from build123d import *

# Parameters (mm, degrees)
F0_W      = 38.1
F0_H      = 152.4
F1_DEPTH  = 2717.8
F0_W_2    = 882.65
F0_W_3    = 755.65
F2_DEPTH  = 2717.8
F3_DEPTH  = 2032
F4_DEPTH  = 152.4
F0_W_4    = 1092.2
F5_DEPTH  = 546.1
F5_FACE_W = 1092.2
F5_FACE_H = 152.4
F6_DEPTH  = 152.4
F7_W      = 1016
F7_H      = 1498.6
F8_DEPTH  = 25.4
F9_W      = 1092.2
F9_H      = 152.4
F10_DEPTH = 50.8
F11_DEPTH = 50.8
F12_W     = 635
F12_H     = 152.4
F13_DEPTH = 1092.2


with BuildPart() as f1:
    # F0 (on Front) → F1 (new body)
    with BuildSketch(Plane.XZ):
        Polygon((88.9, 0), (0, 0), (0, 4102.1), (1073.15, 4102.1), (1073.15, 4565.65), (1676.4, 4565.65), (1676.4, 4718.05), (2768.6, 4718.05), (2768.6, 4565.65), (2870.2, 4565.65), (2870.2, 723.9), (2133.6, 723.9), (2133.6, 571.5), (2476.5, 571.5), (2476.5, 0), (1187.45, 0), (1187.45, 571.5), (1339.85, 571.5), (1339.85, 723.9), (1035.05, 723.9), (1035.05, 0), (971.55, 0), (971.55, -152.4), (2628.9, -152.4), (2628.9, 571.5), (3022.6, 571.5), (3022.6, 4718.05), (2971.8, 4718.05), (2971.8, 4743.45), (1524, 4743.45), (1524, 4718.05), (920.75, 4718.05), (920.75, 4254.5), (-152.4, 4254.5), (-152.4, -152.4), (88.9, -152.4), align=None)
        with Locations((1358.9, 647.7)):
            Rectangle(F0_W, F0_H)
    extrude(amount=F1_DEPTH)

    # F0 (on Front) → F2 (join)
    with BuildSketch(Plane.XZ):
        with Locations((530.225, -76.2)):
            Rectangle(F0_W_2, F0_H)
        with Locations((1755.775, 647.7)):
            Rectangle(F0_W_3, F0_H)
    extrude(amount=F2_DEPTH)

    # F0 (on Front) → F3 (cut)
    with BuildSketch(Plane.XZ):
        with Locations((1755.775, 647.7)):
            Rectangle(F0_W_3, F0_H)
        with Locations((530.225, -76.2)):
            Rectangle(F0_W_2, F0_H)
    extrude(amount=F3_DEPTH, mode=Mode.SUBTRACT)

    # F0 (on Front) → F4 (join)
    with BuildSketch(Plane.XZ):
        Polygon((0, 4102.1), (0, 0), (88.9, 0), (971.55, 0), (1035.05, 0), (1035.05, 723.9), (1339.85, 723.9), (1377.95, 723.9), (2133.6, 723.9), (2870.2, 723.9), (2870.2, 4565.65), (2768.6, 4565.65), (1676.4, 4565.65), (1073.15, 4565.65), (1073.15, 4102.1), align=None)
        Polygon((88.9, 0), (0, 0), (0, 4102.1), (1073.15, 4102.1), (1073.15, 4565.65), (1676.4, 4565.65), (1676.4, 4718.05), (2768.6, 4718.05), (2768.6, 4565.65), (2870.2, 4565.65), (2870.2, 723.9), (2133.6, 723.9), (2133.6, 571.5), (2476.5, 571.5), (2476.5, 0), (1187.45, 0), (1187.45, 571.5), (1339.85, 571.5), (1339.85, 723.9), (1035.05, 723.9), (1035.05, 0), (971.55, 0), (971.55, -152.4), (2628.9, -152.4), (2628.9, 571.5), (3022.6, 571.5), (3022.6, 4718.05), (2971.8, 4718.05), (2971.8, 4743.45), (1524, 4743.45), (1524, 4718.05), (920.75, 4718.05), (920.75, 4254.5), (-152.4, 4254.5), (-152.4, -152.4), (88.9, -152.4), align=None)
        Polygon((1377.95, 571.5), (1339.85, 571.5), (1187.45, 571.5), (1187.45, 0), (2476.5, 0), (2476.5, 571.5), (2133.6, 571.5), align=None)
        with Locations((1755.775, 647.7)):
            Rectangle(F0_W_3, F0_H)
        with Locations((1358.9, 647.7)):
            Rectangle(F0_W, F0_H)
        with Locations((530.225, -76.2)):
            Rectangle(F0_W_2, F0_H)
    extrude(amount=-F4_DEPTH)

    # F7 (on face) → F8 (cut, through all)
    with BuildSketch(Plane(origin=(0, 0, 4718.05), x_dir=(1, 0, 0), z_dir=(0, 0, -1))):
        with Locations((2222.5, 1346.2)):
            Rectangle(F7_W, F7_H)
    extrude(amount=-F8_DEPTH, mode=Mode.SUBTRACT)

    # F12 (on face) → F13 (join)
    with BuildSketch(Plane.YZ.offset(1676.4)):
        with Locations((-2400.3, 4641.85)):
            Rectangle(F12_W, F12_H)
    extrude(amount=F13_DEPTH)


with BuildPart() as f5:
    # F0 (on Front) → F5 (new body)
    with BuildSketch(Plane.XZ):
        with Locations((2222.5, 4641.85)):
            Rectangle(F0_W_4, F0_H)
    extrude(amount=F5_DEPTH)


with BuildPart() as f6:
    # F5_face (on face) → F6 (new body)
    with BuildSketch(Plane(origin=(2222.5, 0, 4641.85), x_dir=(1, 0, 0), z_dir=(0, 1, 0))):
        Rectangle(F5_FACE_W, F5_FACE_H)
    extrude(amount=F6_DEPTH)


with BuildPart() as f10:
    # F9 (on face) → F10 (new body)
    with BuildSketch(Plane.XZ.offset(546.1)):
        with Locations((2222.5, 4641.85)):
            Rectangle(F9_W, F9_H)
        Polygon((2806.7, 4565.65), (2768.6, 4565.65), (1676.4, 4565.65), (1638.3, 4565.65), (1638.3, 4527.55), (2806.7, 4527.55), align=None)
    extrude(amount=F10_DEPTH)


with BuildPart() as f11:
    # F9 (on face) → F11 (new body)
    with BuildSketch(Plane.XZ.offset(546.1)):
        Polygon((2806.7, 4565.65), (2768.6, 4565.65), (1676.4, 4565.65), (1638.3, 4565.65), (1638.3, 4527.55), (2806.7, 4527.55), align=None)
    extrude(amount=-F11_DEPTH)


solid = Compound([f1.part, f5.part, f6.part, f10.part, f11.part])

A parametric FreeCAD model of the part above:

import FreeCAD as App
import Part
import Sketcher
from FreeCAD import Vector
Q = App.Units.Quantity


def add_polygon(sketch, points):
    """Adds a closed chain of lines whose ends are joined by coincident constraints."""
    first, n = sketch.GeometryCount, len(points)
    for a, b in zip(points, points[1:] + points[:1]):
        sketch.addGeometry(Part.LineSegment(App.Vector(*a, 0), App.Vector(*b, 0)), False)
    for i in range(n):
        sketch.addConstraint(Sketcher.Constraint("Coincident", first + i, 2, first + (i + 1) % n, 1))

doc = App.newDocument("Part")
body = doc.addObject("PartDesign::Body", "Body")

sketch1 = body.newObject("Sketcher::SketchObject", "Sketch")
sketch1.AttachmentSupport = (doc.getObject("XZ_Plane"), [""])
sketch1.MapMode = "FlatFace"
add_polygon(sketch1, [(89, 0), (0, 0), (0, 4102), (1073, 4102), (1073, 4566), (1676, 4566), (1676, 4718), (2769, 4718), (2769, 4566), (2870, 4566), (2870, 724), (2134, 724), (2134, 572), (2476, 572), (2476, 0), (1187, 0), (1187, 572), (1378, 572), (1378, 724), (1035, 724), (1035, 0), (972, 0), (972, -152), (2629, -152), (2629, 572), (3023, 572), (3023, 4718), (2972, 4718), (2972, 4743), (1524, 4743), (1524, 4718), (921, 4718), (921, 4254), (-152, 4254), (-152, -152), (89, -152)])
sketch1.addConstraint([
    Sketcher.Constraint("Horizontal", 0),
    Sketcher.Constraint("Vertical", 1),
    Sketcher.Constraint("Horizontal", 2),
    Sketcher.Constraint("Vertical", 3),
    Sketcher.Constraint("Horizontal", 4),
    Sketcher.Constraint("Vertical", 5),
    Sketcher.Constraint("Horizontal", 6),
    Sketcher.Constraint("Vertical", 7),
    Sketcher.Constraint("Horizontal", 8),
    Sketcher.Constraint("Vertical", 9),
    Sketcher.Constraint("Horizontal", 10),
    Sketcher.Constraint("Vertical", 11),
    Sketcher.Constraint("Horizontal", 12),
    Sketcher.Constraint("Vertical", 13),
    Sketcher.Constraint("Horizontal", 14),
    Sketcher.Constraint("Vertical", 15),
    Sketcher.Constraint("Horizontal", 16),
    Sketcher.Constraint("Vertical", 17),
    Sketcher.Constraint("Horizontal", 18),
    Sketcher.Constraint("Vertical", 19),
    Sketcher.Constraint("Horizontal", 20),
    Sketcher.Constraint("Vertical", 21),
    Sketcher.Constraint("Horizontal", 22),
    Sketcher.Constraint("Vertical", 23),
    Sketcher.Constraint("Horizontal", 24),
    Sketcher.Constraint("Vertical", 25),
    Sketcher.Constraint("Horizontal", 26),
    Sketcher.Constraint("Vertical", 27),
    Sketcher.Constraint("Horizontal", 28),
    Sketcher.Constraint("Vertical", 29),
    Sketcher.Constraint("Horizontal", 30),
    Sketcher.Constraint("Vertical", 31),
    Sketcher.Constraint("Horizontal", 32),
    Sketcher.Constraint("Vertical", 33),
    Sketcher.Constraint("Horizontal", 34),
    Sketcher.Constraint("Vertical", 35),
    Sketcher.Constraint("Coincident", 0, 2, -1, 1),
    Sketcher.Constraint("PointOnObject", 13, 2, -1),
    Sketcher.Constraint("PointOnObject", 19, 2, -1),
    Sketcher.Constraint("Horizontal", 4, 2, 7, 2),
    Sketcher.Constraint("Horizontal", 12, 2, 15, 2),
    Sketcher.Constraint("Horizontal", 10, 2, 17, 2),
    Sketcher.Constraint("Horizontal", 16, 2, 23, 2),
    Sketcher.Constraint("Horizontal", 6, 2, 25, 2),
    Sketcher.Constraint("Horizontal", 26, 2, 29, 2),
    Sketcher.Constraint("Horizontal", 22, 2, 33, 2),
    Sketcher.Constraint("Equal", 12, 18),
    Sketcher.Constraint("Equal", 4, 30),
    Sketcher.Constraint("Equal", 2, 32),
    Sketcher.Constraint("Equal", 7, 11),
    Sketcher.Constraint("Equal", 17, 21),
    Sketcher.Constraint("Equal", 3, 31),
    Sketcher.Constraint("DistanceX", 6, 1, 6, 2, Q("43 in")),
    Sketcher.Constraint("DistanceX", 8, 1, 8, 2, Q("4 in")),
    Sketcher.Constraint("DistanceX", 10, 2, 10, 1, Q("29 in")),
    Sketcher.Constraint("DistanceX", 26, 2, 26, 1, Q("2 in")),
    Sketcher.Constraint("DistanceX", 28, 2, 28, 1, Q("57 in")),
    Sketcher.Constraint("DistanceY", 5, 1, 5, 2, Q("6 in")),
    Sketcher.Constraint("DistanceY", 27, 1, 27, 2, Q("1 in")),
    Sketcher.Constraint("DistanceX", 0, 2, 0, 1, Q("3.5 in")),
    Sketcher.Constraint("DistanceX", 12, 1, 12, 2, Q("13.5 in")),
    Sketcher.Constraint("DistanceX", 16, 1, 16, 2, Q("7.5 in")),
    Sketcher.Constraint("DistanceX", 20, 2, 20, 1, Q("2.5 in")),
    Sketcher.Constraint("DistanceX", 24, 1, 24, 2, Q("15.5 in")),
    Sketcher.Constraint("DistanceX", 34, 1, 34, 2, Q("9.5 in")),
    Sketcher.Constraint("DistanceY", 1, 1, 1, 2, Q("161.5 in")),
    Sketcher.Constraint("DistanceY", 13, 2, 13, 1, Q("22.5 in")),
    Sketcher.Constraint("DistanceX", -1, 1, 4, 2, Q("66 in")),
    Sketcher.Constraint("DistanceX", 2, 1, 2, 2, Q("42.25 in")),
    Sketcher.Constraint("DistanceX", 14, 2, 14, 1, Q("50.75 in")),
    Sketcher.Constraint("DistanceY", 3, 1, 3, 2, Q("18.25 in")),
])
pad1 = body.newObject("PartDesign::Pad", "Pad")
pad1.Profile = sketch1
pad1.Length = Q("107 in")

sketch2 = body.newObject("Sketcher::SketchObject", "Sketch001")
sketch2.AttachmentSupport = (doc.getObject("XZ_Plane"), [""])
sketch2.MapMode = "FlatFace"
add_polygon(sketch2, [(89, 0), (89, -152), (972, -152), (972, 0)])
add_polygon(sketch2, [(1378, 724), (1378, 572), (2134, 572), (2134, 724)])
sketch2.addConstraint([
    Sketcher.Constraint("Vertical", 0),
    Sketcher.Constraint("Horizontal", 1),
    Sketcher.Constraint("Vertical", 2),
    Sketcher.Constraint("Horizontal", 3),
    Sketcher.Constraint("Vertical", 4),
    Sketcher.Constraint("Horizontal", 5),
    Sketcher.Constraint("Vertical", 6),
    Sketcher.Constraint("Horizontal", 7),
    Sketcher.Constraint("PointOnObject", 2, 2, -1),
    Sketcher.Constraint("Equal", 2, 4),
    Sketcher.Constraint("DistanceY", 0, 2, 0, 1, Q("6 in")),
    Sketcher.Constraint("DistanceX", -1, 1, 5, 2, Q("84 in")),
    Sketcher.Constraint("DistanceX", 2, 2, 4, 2, Q("16 in")),
    Sketcher.Constraint("DistanceX", 1, 1, 1, 2, Q("34.75 in")),
    Sketcher.Constraint("DistanceX", 5, 1, 5, 2, Q("29.75 in")),
    Sketcher.Constraint("DistanceY", -1, 1, 4, 2, Q("22.5 in")),
])
pad2 = body.newObject("PartDesign::Pad", "Pad001")
pad2.Profile = sketch2
pad2.Length = Q("107 in")

sketch3 = body.newObject("Sketcher::SketchObject", "Sketch002")
sketch3.AttachmentSupport = (doc.getObject("XZ_Plane"), [""])
sketch3.MapMode = "FlatFace"
add_polygon(sketch3, [(1378, 724), (1378, 572), (2134, 572), (2134, 724)])
add_polygon(sketch3, [(89, 0), (89, -152), (972, -152), (972, 0)])
sketch3.addConstraint([
    Sketcher.Constraint("Vertical", 0),
    Sketcher.Constraint("Horizontal", 1),
    Sketcher.Constraint("Vertical", 2),
    Sketcher.Constraint("Horizontal", 3),
    Sketcher.Constraint("Vertical", 4),
    Sketcher.Constraint("Horizontal", 5),
    Sketcher.Constraint("Vertical", 6),
    Sketcher.Constraint("Horizontal", 7),
    Sketcher.Constraint("PointOnObject", 6, 2, -1),
    Sketcher.Constraint("Equal", 2, 4),
    Sketcher.Constraint("DistanceY", 0, 2, 0, 1, Q("6 in")),
    Sketcher.Constraint("DistanceX", -1, 1, 1, 2, Q("84 in")),
    Sketcher.Constraint("DistanceX", 5, 2, 0, 2, Q("16 in")),
    Sketcher.Constraint("DistanceX", 1, 1, 1, 2, Q("29.75 in")),
    Sketcher.Constraint("DistanceX", 5, 1, 5, 2, Q("34.75 in")),
    Sketcher.Constraint("DistanceY", -1, 1, 0, 2, Q("22.5 in")),
])
pocket1 = body.newObject("PartDesign::Pocket", "Pocket")
pocket1.Profile = sketch3
pocket1.Length = Q("80 in")
pocket1.Reversed = True

sketch4 = body.newObject("Sketcher::SketchObject", "Sketch003")
sketch4.AttachmentSupport = (doc.getObject("XZ_Plane"), [""])
sketch4.MapMode = "FlatFace"
add_polygon(sketch4, [(2629, -152), (2629, 572), (3023, 572), (3023, 4718), (2972, 4718), (2972, 4743), (1524, 4743), (1524, 4718), (921, 4718), (921, 4254), (-152, 4254), (-152, -152)])
add_polygon(sketch4, [(2769, 4566), (1676, 4566), (1676, 4718), (2769, 4718)])
sketch4.addConstraint([
    Sketcher.Constraint("Vertical", 0),
    Sketcher.Constraint("Horizontal", 1),
    Sketcher.Constraint("Vertical", 2),
    Sketcher.Constraint("Horizontal", 3),
    Sketcher.Constraint("Vertical", 4),
    Sketcher.Constraint("Horizontal", 5),
    Sketcher.Constraint("Vertical", 6),
    Sketcher.Constraint("Horizontal", 7),
    Sketcher.Constraint("Vertical", 8),
    Sketcher.Constraint("Horizontal", 9),
    Sketcher.Constraint("Vertical", 10),
    Sketcher.Constraint("Horizontal", 11),
    Sketcher.Constraint("Horizontal", 12),
    Sketcher.Constraint("Vertical", 13),
    Sketcher.Constraint("Horizontal", 14),
    Sketcher.Constraint("Vertical", 15),
    Sketcher.Constraint("Horizontal", 3, 2, 6, 2),
    Sketcher.Constraint("Horizontal", 7, 2, 13, 2),
    Sketcher.Constraint("DistanceX", 3, 2, 3, 1, Q("2 in")),
    Sketcher.Constraint("DistanceX", 5, 2, 5, 1, Q("57 in")),
    Sketcher.Constraint("DistanceX", 12, 2, 12, 1, Q("43 in")),
    Sketcher.Constraint("DistanceY", 4, 1, 4, 2, Q("1 in")),
    Sketcher.Constraint("DistanceY", 13, 1, 13, 2, Q("6 in")),
    Sketcher.Constraint("DistanceX", 1, 1, 1, 2, Q("15.5 in")),
    Sketcher.Constraint("DistanceX", 11, 1, 11, 2, Q("109.5 in")),
    Sketcher.Constraint("DistanceY", 0, 1, 0, 2, Q("28.5 in")),
    Sketcher.Constraint("DistanceY", 10, 2, 10, 1, Q("173.5 in")),
    Sketcher.Constraint("DistanceX", -1, 1, 1, 2, Q("119 in")),
    Sketcher.Constraint("DistanceY", 10, 2, -1, 1, Q("6 in")),
    Sketcher.Constraint("DistanceX", -1, 1, 12, 2, Q("66 in")),
    Sketcher.Constraint("DistanceX", 7, 2, 7, 1, Q("23.75 in")),
    Sketcher.Constraint("DistanceY", 2, 1, 2, 2, Q("163.25 in")),
])
pad3 = body.newObject("PartDesign::Pad", "Pad002")
pad3.Profile = sketch4
pad3.Length = Q("6 in")
pad3.Reversed = True

sketch5 = body.newObject("Sketcher::SketchObject", "Sketch004")
sketch5.AttachmentSupport = (doc.getObject("XY_Plane"), [""])
sketch5.MapMode = "FlatFace"
sketch5.AttachmentOffset = App.Placement(Vector(0, 0, 185.75 * 25.4), App.Rotation())
add_polygon(sketch5, [(1714, -2096), (1714, -597), (2730, -597), (2730, -2096)])
sketch5.addConstraint([
    Sketcher.Constraint("Vertical", 0),
    Sketcher.Constraint("Horizontal", 1),
    Sketcher.Constraint("Vertical", 2),
    Sketcher.Constraint("Horizontal", 3),
    Sketcher.Constraint("DistanceX", 1, 1, 1, 2, Q("40 in")),
    Sketcher.Constraint("DistanceY", 0, 1, 0, 2, Q("59 in")),
    Sketcher.Constraint("DistanceX", -1, 1, 0, 2, Q("67.5 in")),
    Sketcher.Constraint("DistanceY", 0, 2, -1, 1, Q("23.5 in")),
])
pocket2 = body.newObject("PartDesign::Pocket", "Pocket001")
pocket2.Profile = sketch5
pocket2.Type = "ThroughAll"
pocket2.Reversed = True

sketch6 = body.newObject("Sketcher::SketchObject", "Sketch005")
sketch6.AttachmentSupport = (doc.getObject("YZ_Plane"), [""])
sketch6.MapMode = "FlatFace"
sketch6.AttachmentOffset = App.Placement(Vector(0, 0, 66 * 25.4), App.Rotation())
add_polygon(sketch6, [(-2718, 4718), (-2718, 4566), (-2083, 4566), (-2083, 4718)])
sketch6.addConstraint([
    Sketcher.Constraint("Vertical", 0),
    Sketcher.Constraint("Horizontal", 1),
    Sketcher.Constraint("Vertical", 2),
    Sketcher.Constraint("Horizontal", 3),
    Sketcher.Constraint("DistanceX", 1, 1, 1, 2, Q("25 in")),
    Sketcher.Constraint("DistanceY", 0, 2, 0, 1, Q("6 in")),
    Sketcher.Constraint("DistanceX", 0, 2, -1, 1, Q("107 in")),
    Sketcher.Constraint("DistanceY", -1, 1, 0, 2, Q("179.75 in")),
])
pad4 = body.newObject("PartDesign::Pad", "Pad003")
pad4.Profile = sketch6
pad4.Length = Q("43 in")
body2 = doc.addObject("PartDesign::Body", "Body001")

sketch7 = body2.newObject("Sketcher::SketchObject", "Sketch006")
sketch7.AttachmentSupport = (doc.getObject("XZ_Plane001"), [""])
sketch7.MapMode = "FlatFace"
add_polygon(sketch7, [(1676, 4718), (1676, 4566), (2769, 4566), (2769, 4718)])
sketch7.addConstraint([
    Sketcher.Constraint("Vertical", 0),
    Sketcher.Constraint("Horizontal", 1),
    Sketcher.Constraint("Vertical", 2),
    Sketcher.Constraint("Horizontal", 3),
    Sketcher.Constraint("DistanceX", 1, 1, 1, 2, Q("43 in")),
    Sketcher.Constraint("DistanceY", 0, 2, 0, 1, Q("6 in")),
    Sketcher.Constraint("DistanceX", -1, 1, 0, 2, Q("66 in")),
    Sketcher.Constraint("DistanceY", -1, 1, 0, 2, Q("179.75 in")),
])
pad5 = body2.newObject("PartDesign::Pad", "Pad004")
pad5.Profile = sketch7
pad5.Length = Q("21.5 in")
body3 = doc.addObject("PartDesign::Body", "Body002")

sketch8 = body3.newObject("Sketcher::SketchObject", "Sketch007")
sketch8.AttachmentSupport = (doc.getObject("XZ_Plane002"), [""])
sketch8.MapMode = "FlatFace"
add_polygon(sketch8, [(1676, 4566), (1676, 4718), (2769, 4718), (2769, 4566)])
sketch8.addConstraint([
    Sketcher.Constraint("Vertical", 0),
    Sketcher.Constraint("Horizontal", 1),
    Sketcher.Constraint("Vertical", 2),
    Sketcher.Constraint("Horizontal", 3),
    Sketcher.Constraint("DistanceX", 1, 1, 1, 2, Q("43 in")),
    Sketcher.Constraint("DistanceY", 0, 1, 0, 2, Q("6 in")),
    Sketcher.Constraint("DistanceX", -1, 1, 0, 2, Q("66 in")),
    Sketcher.Constraint("DistanceY", -1, 1, 0, 2, Q("185.75 in")),
])
pad6 = body3.newObject("PartDesign::Pad", "Pad005")
pad6.Profile = sketch8
pad6.Length = Q("6 in")
pad6.Reversed = True
body4 = doc.addObject("PartDesign::Body", "Body003")

sketch9 = body4.newObject("Sketcher::SketchObject", "Sketch008")
sketch9.AttachmentSupport = (doc.getObject("XZ_Plane003"), [""])
sketch9.MapMode = "FlatFace"
sketch9.AttachmentOffset = App.Placement(Vector(0, 0, 21.5 * 25.4), App.Rotation())
add_polygon(sketch9, [(1676, 4718), (1676, 4566), (1638, 4566), (1638, 4528), (2807, 4528), (2807, 4566), (2769, 4566), (2769, 4718)])
sketch9.addConstraint([
    Sketcher.Constraint("Vertical", 0),
    Sketcher.Constraint("Horizontal", 1),
    Sketcher.Constraint("Vertical", 2),
    Sketcher.Constraint("Horizontal", 3),
    Sketcher.Constraint("Vertical", 4),
    Sketcher.Constraint("Horizontal", 5),
    Sketcher.Constraint("Vertical", 6),
    Sketcher.Constraint("Horizontal", 7),
    Sketcher.Constraint("Horizontal", 1, 2, 4, 2),
    Sketcher.Constraint("Equal", 1, 5),
    Sketcher.Constraint("Equal", 5, 2),
    Sketcher.Constraint("DistanceX", 3, 1, 3, 2, Q("46 in")),
    Sketcher.Constraint("DistanceX", 7, 2, 7, 1, Q("43 in")),
    Sketcher.Constraint("DistanceY", 0, 2, 0, 1, Q("6 in")),
    Sketcher.Constraint("DistanceX", -1, 1, 0, 2, Q("66 in")),
    Sketcher.Constraint("DistanceY", -1, 1, 0, 2, Q("179.75 in")),
])
pad7 = body4.newObject("PartDesign::Pad", "Pad006")
pad7.Profile = sketch9
pad7.Length = Q("2 in")
body5 = doc.addObject("PartDesign::Body", "Body004")

sketch10 = body5.newObject("Sketcher::SketchObject", "Sketch009")
sketch10.AttachmentSupport = (doc.getObject("XZ_Plane004"), [""])
sketch10.MapMode = "FlatFace"
sketch10.AttachmentOffset = App.Placement(Vector(0, 0, 21.5 * 25.4), App.Rotation())
add_polygon(sketch10, [(2807, 4566), (1638, 4566), (1638, 4528), (2807, 4528)])
sketch10.addConstraint([
    Sketcher.Constraint("Horizontal", 0),
    Sketcher.Constraint("Vertical", 1),
    Sketcher.Constraint("Horizontal", 2),
    Sketcher.Constraint("Vertical", 3),
    Sketcher.Constraint("DistanceX", 0, 2, 0, 1, Q("46 in")),
    Sketcher.Constraint("DistanceY", 1, 2, 1, 1, Q("1.5 in")),
    Sketcher.Constraint("DistanceX", -1, 1, 0, 2, Q("64.5 in")),
    Sketcher.Constraint("DistanceY", -1, 1, 0, 2, Q("179.75 in")),
])
pad8 = body5.newObject("PartDesign::Pad", "Pad007")
pad8.Profile = sketch10
pad8.Length = Q("2 in")
pad8.Reversed = True

doc.recompute()
